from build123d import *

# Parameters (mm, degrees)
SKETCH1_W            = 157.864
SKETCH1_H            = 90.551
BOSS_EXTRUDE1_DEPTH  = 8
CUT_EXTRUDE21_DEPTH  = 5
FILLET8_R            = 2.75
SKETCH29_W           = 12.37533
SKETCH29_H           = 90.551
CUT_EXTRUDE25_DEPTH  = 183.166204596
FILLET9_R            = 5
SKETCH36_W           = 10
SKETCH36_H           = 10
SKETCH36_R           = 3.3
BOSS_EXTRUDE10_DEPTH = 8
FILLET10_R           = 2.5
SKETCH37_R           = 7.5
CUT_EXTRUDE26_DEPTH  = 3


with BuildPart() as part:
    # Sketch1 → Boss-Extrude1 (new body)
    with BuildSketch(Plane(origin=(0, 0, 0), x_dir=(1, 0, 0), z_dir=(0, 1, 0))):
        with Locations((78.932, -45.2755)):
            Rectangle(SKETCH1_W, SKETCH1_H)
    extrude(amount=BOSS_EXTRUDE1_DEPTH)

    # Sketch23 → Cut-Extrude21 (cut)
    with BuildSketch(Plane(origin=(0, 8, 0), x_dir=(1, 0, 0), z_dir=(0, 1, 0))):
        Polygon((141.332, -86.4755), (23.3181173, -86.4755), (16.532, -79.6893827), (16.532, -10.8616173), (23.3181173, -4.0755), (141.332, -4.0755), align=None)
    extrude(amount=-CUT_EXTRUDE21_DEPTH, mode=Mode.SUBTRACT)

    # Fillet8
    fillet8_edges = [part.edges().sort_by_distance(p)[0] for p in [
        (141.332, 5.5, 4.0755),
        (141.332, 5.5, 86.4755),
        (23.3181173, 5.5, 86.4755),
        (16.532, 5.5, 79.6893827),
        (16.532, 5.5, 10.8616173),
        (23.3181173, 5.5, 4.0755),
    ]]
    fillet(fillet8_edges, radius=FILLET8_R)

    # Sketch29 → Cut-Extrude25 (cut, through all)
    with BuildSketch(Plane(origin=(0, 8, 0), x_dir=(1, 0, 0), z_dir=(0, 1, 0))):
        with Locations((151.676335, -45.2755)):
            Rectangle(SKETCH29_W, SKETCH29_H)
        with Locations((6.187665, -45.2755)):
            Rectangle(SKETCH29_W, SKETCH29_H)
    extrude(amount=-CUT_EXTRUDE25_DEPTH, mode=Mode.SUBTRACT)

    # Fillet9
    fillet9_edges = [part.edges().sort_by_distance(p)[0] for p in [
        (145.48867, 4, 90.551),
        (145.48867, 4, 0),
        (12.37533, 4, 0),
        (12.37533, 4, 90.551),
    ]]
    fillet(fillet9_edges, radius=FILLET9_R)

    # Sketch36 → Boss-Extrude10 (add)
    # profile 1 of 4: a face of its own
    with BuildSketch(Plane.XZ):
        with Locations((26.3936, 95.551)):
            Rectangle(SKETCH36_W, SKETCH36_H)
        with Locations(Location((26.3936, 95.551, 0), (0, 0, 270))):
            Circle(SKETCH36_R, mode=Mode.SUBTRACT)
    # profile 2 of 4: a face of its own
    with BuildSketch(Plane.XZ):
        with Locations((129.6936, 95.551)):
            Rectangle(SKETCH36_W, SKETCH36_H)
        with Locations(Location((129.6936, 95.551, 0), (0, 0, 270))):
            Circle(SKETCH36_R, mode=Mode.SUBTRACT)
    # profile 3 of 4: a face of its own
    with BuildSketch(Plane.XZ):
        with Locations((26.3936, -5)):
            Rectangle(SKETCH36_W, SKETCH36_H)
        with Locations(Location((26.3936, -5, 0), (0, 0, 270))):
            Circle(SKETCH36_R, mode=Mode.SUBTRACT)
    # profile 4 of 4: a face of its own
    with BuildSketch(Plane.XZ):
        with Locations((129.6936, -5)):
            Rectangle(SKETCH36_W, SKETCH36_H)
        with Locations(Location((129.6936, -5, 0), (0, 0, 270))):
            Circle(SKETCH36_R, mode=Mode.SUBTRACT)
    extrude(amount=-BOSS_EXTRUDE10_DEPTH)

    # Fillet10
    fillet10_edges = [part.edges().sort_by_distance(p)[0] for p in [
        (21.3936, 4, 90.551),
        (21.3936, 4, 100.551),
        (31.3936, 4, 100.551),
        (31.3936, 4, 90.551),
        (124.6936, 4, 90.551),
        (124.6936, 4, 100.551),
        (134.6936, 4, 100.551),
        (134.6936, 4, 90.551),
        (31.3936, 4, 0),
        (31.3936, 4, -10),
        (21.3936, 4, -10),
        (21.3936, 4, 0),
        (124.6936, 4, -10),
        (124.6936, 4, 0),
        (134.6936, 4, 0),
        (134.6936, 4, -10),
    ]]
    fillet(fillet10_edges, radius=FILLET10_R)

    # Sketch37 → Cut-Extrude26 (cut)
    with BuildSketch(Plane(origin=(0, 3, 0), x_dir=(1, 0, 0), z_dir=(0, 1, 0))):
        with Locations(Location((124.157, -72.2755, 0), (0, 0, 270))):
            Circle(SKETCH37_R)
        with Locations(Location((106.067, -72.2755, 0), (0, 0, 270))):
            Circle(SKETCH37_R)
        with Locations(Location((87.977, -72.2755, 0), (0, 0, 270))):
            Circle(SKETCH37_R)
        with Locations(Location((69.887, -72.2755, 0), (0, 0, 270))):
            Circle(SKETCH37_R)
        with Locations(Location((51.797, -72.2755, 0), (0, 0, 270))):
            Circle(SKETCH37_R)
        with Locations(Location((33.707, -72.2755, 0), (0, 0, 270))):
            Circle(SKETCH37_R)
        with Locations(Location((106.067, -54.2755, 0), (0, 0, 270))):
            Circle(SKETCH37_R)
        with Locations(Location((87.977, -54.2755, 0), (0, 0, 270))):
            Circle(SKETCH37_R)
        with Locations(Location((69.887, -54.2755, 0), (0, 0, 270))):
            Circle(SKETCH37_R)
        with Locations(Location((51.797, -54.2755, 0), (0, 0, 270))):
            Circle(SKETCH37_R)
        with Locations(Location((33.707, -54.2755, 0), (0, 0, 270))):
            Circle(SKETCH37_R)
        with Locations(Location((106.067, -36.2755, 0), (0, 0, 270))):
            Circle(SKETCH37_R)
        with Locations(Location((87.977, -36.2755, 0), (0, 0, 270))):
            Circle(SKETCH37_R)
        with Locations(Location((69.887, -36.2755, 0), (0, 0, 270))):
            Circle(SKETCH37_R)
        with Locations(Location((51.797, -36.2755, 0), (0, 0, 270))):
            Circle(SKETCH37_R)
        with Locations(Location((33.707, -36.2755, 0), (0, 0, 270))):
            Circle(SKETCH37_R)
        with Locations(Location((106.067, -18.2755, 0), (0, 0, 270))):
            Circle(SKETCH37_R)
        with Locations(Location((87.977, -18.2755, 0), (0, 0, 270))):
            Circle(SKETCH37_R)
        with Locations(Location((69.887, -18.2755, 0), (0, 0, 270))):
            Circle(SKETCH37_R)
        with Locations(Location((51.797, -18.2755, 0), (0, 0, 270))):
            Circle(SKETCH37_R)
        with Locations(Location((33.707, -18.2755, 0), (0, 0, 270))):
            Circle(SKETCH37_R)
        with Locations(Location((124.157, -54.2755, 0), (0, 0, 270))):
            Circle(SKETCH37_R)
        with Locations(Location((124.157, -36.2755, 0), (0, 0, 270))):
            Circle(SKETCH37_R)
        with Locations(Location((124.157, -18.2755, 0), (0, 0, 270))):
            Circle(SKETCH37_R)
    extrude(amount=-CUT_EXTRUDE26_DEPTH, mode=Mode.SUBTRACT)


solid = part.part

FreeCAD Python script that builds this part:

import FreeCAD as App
import Part
import Sketcher

V = App.Vector


def edges_at(feature, points):
    """Names of the edges that pass closest to the given points."""
    edges = feature.Shape.Edges
    near = lambda p: min(range(len(edges)), key=lambda i: edges[i].distToShape(Part.Vertex(*p))[0])
    return sorted({f"Edge{near(p) + 1}" for p in points})


def add_polygon(sketch, points):
    """Adds a closed chain of lines whose ends are joined by coincident constraints."""
    first, n = sketch.GeometryCount, len(points)
    for a, b in zip(points, points[1:] + points[:1]):
        sketch.addGeometry(Part.LineSegment(App.Vector(*a, 0), App.Vector(*b, 0)), False)
    for i in range(n):
        sketch.addConstraint(Sketcher.Constraint("Coincident", first + i, 2, first + (i + 1) % n, 1))

doc = App.newDocument("Part")
body = doc.addObject("PartDesign::Body", "Body")

# Sketch on XZ plane
sketch1 = body.newObject("Sketcher::SketchObject", "Sketch")
sketch1.AttachmentSupport = (doc.getObject("XZ_Plane"), [""])
sketch1.MapMode = "FlatFace"
add_polygon(sketch1, [(0, 0), (0, 91), (158, 91), (158, 0)])  # lines 0-3
sketch1.addConstraint(Sketcher.Constraint("Vertical", 0))
sketch1.addConstraint(Sketcher.Constraint("Horizontal", 1))
sketch1.addConstraint(Sketcher.Constraint("Vertical", 2))
sketch1.addConstraint(Sketcher.Constraint("Horizontal", 3))
sketch1.addConstraint(Sketcher.Constraint("Coincident", 3, 2, -1, 1))
sketch1.addConstraint(Sketcher.Constraint("DistanceX", 1, 1, 1, 2, 157.864))
sketch1.addConstraint(Sketcher.Constraint("DistanceY", 0, 1, 0, 2, 90.551))
pad1 = body.newObject("PartDesign::Pad", "Pad")
pad1.Profile = sketch1
pad1.Length = 8
pad1.Reversed = True

# Sketch on XZ plane
sketch2 = body.newObject("Sketcher::SketchObject", "Sketch001")
sketch2.AttachmentSupport = (doc.getObject("XZ_Plane"), [""])
sketch2.MapMode = "FlatFace"
sketch2.AttachmentOffset = App.Placement(V(0, 0, -8), App.Rotation())
add_polygon(sketch2, [(23, 86), (141, 86), (141, 4), (23, 4), (17, 11), (17, 80)])  # lines 0-5
sketch2.addConstraint(Sketcher.Constraint("Horizontal", 0))
sketch2.addConstraint(Sketcher.Constraint("Vertical", 1))
sketch2.addConstraint(Sketcher.Constraint("Horizontal", 2))
sketch2.addConstraint(Sketcher.Constraint("Vertical", 4))
sketch2.addConstraint(Sketcher.Constraint("Perpendicular", 3, 5))
sketch2.addConstraint(Sketcher.Constraint("Vertical", 2, 2, 5, 2))
sketch2.addConstraint(Sketcher.Constraint("Equal", 3, 5))
sketch2.addConstraint(Sketcher.Constraint("DistanceY", 1, 2, 1, 1, 82.4))
sketch2.addConstraint(Sketcher.Constraint("DistanceX", 3, 2, 1, 2, 124.8))
sketch2.addConstraint(Sketcher.Constraint("DistanceX", -1, 1, 0, 2, 141.332))
sketch2.addConstraint(Sketcher.Constraint("DistanceY", -1, 1, 0, 2, 86.4755))
sketch2.addConstraint(Sketcher.Constraint("Distance", 3, 9.597019))
pocket1 = body.newObject("PartDesign::Pocket", "Pocket")
pocket1.Profile = sketch2
pocket1.Length = 5
pocket1.Reversed = True
doc.recompute()

fillet = body.newObject("PartDesign::Fillet", "Fillet")
fillet.Base = (pocket1, edges_at(pocket1, [
    (141.332, 5.5, 4.075),
    (141.332, 5.5, 86.475),
    (23.318, 5.5, 86.475),
    (16.532, 5.5, 79.689),
    (16.532, 5.5, 10.862),
    (23.318, 5.5, 4.075),
]))
fillet.Radius = 2.75

# Sketch on XZ plane
sketch3 = body.newObject("Sketcher::SketchObject", "Sketch002")
sketch3.AttachmentSupport = (doc.getObject("XZ_Plane"), [""])
sketch3.MapMode = "FlatFace"
sketch3.AttachmentOffset = App.Placement(V(0, 0, -8), App.Rotation())
add_polygon(sketch3, [(145, 0), (145, 91), (158, 91), (158, 0)])  # lines 0-3
add_polygon(sketch3, [(0, 0), (0, 91), (12, 91), (12, 0)])  # lines 4-7
sketch3.addConstraint(Sketcher.Constraint("Vertical", 0))
sketch3.addConstraint(Sketcher.Constraint("Horizontal", 1))
sketch3.addConstraint(Sketcher.Constraint("Vertical", 2))
sketch3.addConstraint(Sketcher.Constraint("Horizontal", 3))
sketch3.addConstraint(Sketcher.Constraint("Vertical", 4))
sketch3.addConstraint(Sketcher.Constraint("Horizontal", 5))
sketch3.addConstraint(Sketcher.Constraint("Vertical", 6))
sketch3.addConstraint(Sketcher.Constraint("Horizontal", 7))
sketch3.addConstraint(Sketcher.Constraint("Coincident", 7, 2, -1, 1))
sketch3.addConstraint(Sketcher.Constraint("PointOnObject", 2, 2, -1))
sketch3.addConstraint(Sketcher.Constraint("Horizontal", 1, 2, 4, 2))
sketch3.addConstraint(Sketcher.Constraint("Equal", 3, 5))
sketch3.addConstraint(Sketcher.Constraint("DistanceY", 0, 1, 0, 2, 90.551))
sketch3.addConstraint(Sketcher.Constraint("DistanceX", -1, 1, 1, 2, 157.864))
sketch3.addConstraint(Sketcher.Constraint("DistanceX", 1, 1, 1, 2, 12.37533))
pocket2 = body.newObject("PartDesign::Pocket", "Pocket001")
pocket2.Profile = sketch3
pocket2.Type = "ThroughAll"
pocket2.Reversed = True
doc.recompute()

fillet2 = body.newObject("PartDesign::Fillet", "Fillet001")
fillet2.Base = (pocket2, edges_at(pocket2, [
    (145.489, 4, 90.551),
    (145.489, 4, 0),
    (12.375, 4, 0),
    (12.375, 4, 90.551),
]))
fillet2.Radius = 5

# Sketch on XZ plane
sketch4 = body.newObject("Sketcher::SketchObject", "Sketch003")
sketch4.AttachmentSupport = (doc.getObject("XZ_Plane"), [""])
sketch4.MapMode = "FlatFace"
add_polygon(sketch4, [(21.4, 100.6), (21.4, 90.6), (31.4, 90.6), (31.4, 100.6)])  # lines 0-3
sketch4.addGeometry(Part.Circle(V(26.4, 95.6, 0), V(0, 0, 1), 3.3), False)  # 4
add_polygon(sketch4, [(124.7, 100.6), (124.7, 90.6), (134.7, 90.6), (134.7, 100.6)])  # lines 5-8
sketch4.addGeometry(Part.Circle(V(129.7, 95.6, 0), V(0, 0, 1), 3.3), False)  # 9
add_polygon(sketch4, [(21.4, 0), (21.4, -10), (31.4, -10), (31.4, 0)])  # lines 10-13
sketch4.addGeometry(Part.Circle(V(26.4, -5, 0), V(0, 0, 1), 3.3), False)  # 14
add_polygon(sketch4, [(124.7, 0), (124.7, -10), (134.7, -10), (134.7, 0)])  # lines 15-18
sketch4.addGeometry(Part.Circle(V(129.7, -5, 0), V(0, 0, 1), 3.3), False)  # 19
sketch4.addConstraint(Sketcher.Constraint("Vertical", 0))
sketch4.addConstraint(Sketcher.Constraint("Horizontal", 1))
sketch4.addConstraint(Sketcher.Constraint("Vertical", 2))
sketch4.addConstraint(Sketcher.Constraint("Horizontal", 3))
sketch4.addConstraint(Sketcher.Constraint("Vertical", 5))
sketch4.addConstraint(Sketcher.Constraint("Horizontal", 6))
sketch4.addConstraint(Sketcher.Constraint("Vertical", 7))
sketch4.addConstraint(Sketcher.Constraint("Horizontal", 8))
sketch4.addConstraint(Sketcher.Constraint("Vertical", 10))
sketch4.addConstraint(Sketcher.Constraint("Horizontal", 11))
sketch4.addConstraint(Sketcher.Constraint("Vertical", 12))
sketch4.addConstraint(Sketcher.Constraint("Horizontal", 13))
sketch4.addConstraint(Sketcher.Constraint("Vertical", 15))
sketch4.addConstraint(Sketcher.Constraint("Horizontal", 16))
sketch4.addConstraint(Sketcher.Constraint("Vertical", 17))
sketch4.addConstraint(Sketcher.Constraint("Horizontal", 18))
sketch4.addConstraint(Sketcher.Constraint("Equal", 4, 9))
sketch4.addConstraint(Sketcher.Constraint("Equal", 9, 14))
sketch4.addConstraint(Sketcher.Constraint("Equal", 14, 19))
sketch4.addConstraint(Sketcher.Constraint("PointOnObject", 12, 2, -1))
sketch4.addConstraint(Sketcher.Constraint("PointOnObject", 17, 2, -1))
sketch4.addConstraint(Sketcher.Constraint("Horizontal", 4, 3, 9, 3))
sketch4.addConstraint(Sketcher.Constraint("Horizontal", 14, 3, 19, 3))
sketch4.addConstraint(Sketcher.Constraint("Horizontal", 1, 2, 5, 2))
sketch4.addConstraint(Sketcher.Constraint("Horizontal", 3, 2, 7, 2))
sketch4.addConstraint(Sketcher.Constraint("Horizontal", 11, 2, 15, 2))
sketch4.addConstraint(Sketcher.Constraint("Vertical", 4, 3, 14, 3))
sketch4.addConstraint(Sketcher.Constraint("Vertical", 9, 3, 19, 3))
sketch4.addConstraint(Sketcher.Constraint("Vertical", 3, 2, 10, 2))
sketch4.addConstraint(Sketcher.Constraint("Vertical", 2, 2, 11, 2))
sketch4.addConstraint(Sketcher.Constraint("Vertical", 8, 2, 15, 2))
sketch4.addConstraint(Sketcher.Constraint("Vertical", 7, 2, 16, 2))
sketch4.addConstraint(Sketcher.Constraint("Equal", 3, 6))
sketch4.addConstraint(Sketcher.Constraint("Equal", 18, 0))
sketch4.addConstraint(Sketcher.Constraint("Equal", 7, 10))
sketch4.addConstraint(Sketcher.Constraint("Diameter", 4, 6.6))
sketch4.addConstraint(Sketcher.Constraint("DistanceX", 1, 1, 1, 2, 10.0))
sketch4.addConstraint(Sketcher.Constraint("DistanceY", 14, 3, -1, 1, 5.0))
sketch4.addConstraint(Sketcher.Constraint("DistanceX", 0, 2, 4, 3, 5.0))
sketch4.addConstraint(Sketcher.Constraint("DistanceY", 0, 2, 4, 3, 5.0))
sketch4.addConstraint(Sketcher.Constraint("DistanceX", 5, 2, 9, 3, 5.0))
sketch4.addConstraint(Sketcher.Constraint("DistanceX", 4, 3, 9, 3, 103.3))
sketch4.addConstraint(Sketcher.Constraint("DistanceY", -1, 1, 4, 3, 95.551))
sketch4.addConstraint(Sketcher.Constraint("DistanceX", -1, 1, 4, 3, 26.3936))
pad2 = body.newObject("PartDesign::Pad", "Pad001")
pad2.Profile = sketch4
pad2.Length = 8
pad2.Reversed = True
doc.recompute()

fillet3 = body.newObject("PartDesign::Fillet", "Fillet002")
fillet3.Base = (pad2, edges_at(pad2, [
    (21.394, 4, 90.551),
    (21.394, 4, 100.551),
    (31.394, 4, 100.551),
    (31.394, 4, 90.551),
    (124.694, 4, 90.551),
    (124.694, 4, 100.551),
    (134.694, 4, 100.551),
    (134.694, 4, 90.551),
    (31.394, 4, 0),
    (31.394, 4, -10),
    (21.394, 4, -10),
    (21.394, 4, 0),
    (124.694, 4, -10),
    (124.694, 4, 0),
    (134.694, 4, 0),
    (134.694, 4, -10),
]))
fillet3.Radius = 2.5

# Sketch on XZ plane
sketch5 = body.newObject("Sketcher::SketchObject", "Sketch004")
sketch5.AttachmentSupport = (doc.getObject("XZ_Plane"), [""])
sketch5.MapMode = "FlatFace"
sketch5.AttachmentOffset = App.Placement(V(0, 0, -3), App.Rotation())
sketch5.addGeometry(Part.Circle(V(124, 72, 0), V(0, 0, 1), 8), False)
sketch5.addGeometry(Part.Circle(V(106, 72, 0), V(0, 0, 1), 8), False)
sketch5.addGeometry(Part.Circle(V(88, 72, 0), V(0, 0, 1), 8), False)
sketch5.addGeometry(Part.Circle(V(70, 72, 0), V(0, 0, 1), 8), False)
sketch5.addGeometry(Part.Circle(V(52, 72, 0), V(0, 0, 1), 8), False)
sketch5.addGeometry(Part.Circle(V(34, 72, 0), V(0, 0, 1), 8), False)
sketch5.addGeometry(Part.Circle(V(106, 54, 0), V(0, 0, 1), 8), False)
sketch5.addGeometry(Part.Circle(V(88, 54, 0), V(0, 0, 1), 8), False)
sketch5.addGeometry(Part.Circle(V(70, 54, 0), V(0, 0, 1), 8), False)
sketch5.addGeometry(Part.Circle(V(52, 54, 0), V(0, 0, 1), 8), False)
sketch5.addGeometry(Part.Circle(V(34, 54, 0), V(0, 0, 1), 8), False)
sketch5.addGeometry(Part.Circle(V(106, 36, 0), V(0, 0, 1), 8), False)
sketch5.addGeometry(Part.Circle(V(88, 36, 0), V(0, 0, 1), 8), False)
sketch5.addGeometry(Part.Circle(V(70, 36, 0), V(0, 0, 1), 8), False)
sketch5.addGeometry(Part.Circle(V(52, 36, 0), V(0, 0, 1), 8), False)
sketch5.addGeometry(Part.Circle(V(34, 36, 0), V(0, 0, 1), 8), False)
sketch5.addGeometry(Part.Circle(V(106, 18, 0), V(0, 0, 1), 8), False)
sketch5.addGeometry(Part.Circle(V(88, 18, 0), V(0, 0, 1), 8), False)
sketch5.addGeometry(Part.Circle(V(70, 18, 0), V(0, 0, 1), 8), False)
sketch5.addGeometry(Part.Circle(V(52, 18, 0), V(0, 0, 1), 8), False)
sketch5.addGeometry(Part.Circle(V(34, 18, 0), V(0, 0, 1), 8), False)
sketch5.addGeometry(Part.Circle(V(124, 54, 0), V(0, 0, 1), 8), False)
sketch5.addGeometry(Part.Circle(V(124, 36, 0), V(0, 0, 1), 8), False)
sketch5.addGeometry(Part.Circle(V(124, 18, 0), V(0, 0, 1), 8), False)
sketch5.addConstraint(Sketcher.Constraint("Equal", 0, 1))
sketch5.addConstraint(Sketcher.Constraint("Equal", 1, 2))
sketch5.addConstraint(Sketcher.Constraint("Equal", 2, 3))
sketch5.addConstraint(Sketcher.Constraint("Equal", 3, 4))
sketch5.addConstraint(Sketcher.Constraint("Equal", 4, 5))
sketch5.addConstraint(Sketcher.Constraint("Equal", 5, 6))
sketch5.addConstraint(Sketcher.Constraint("Equal", 6, 7))
sketch5.addConstraint(Sketcher.Constraint("Equal", 7, 8))
sketch5.addConstraint(Sketcher.Constraint("Equal", 8, 9))
sketch5.addConstraint(Sketcher.Constraint("Equal", 9, 10))
sketch5.addConstraint(Sketcher.Constraint("Equal", 10, 11))
sketch5.addConstraint(Sketcher.Constraint("Equal", 11, 12))
sketch5.addConstraint(Sketcher.Constraint("Equal", 12, 13))
sketch5.addConstraint(Sketcher.Constraint("Equal", 13, 14))
sketch5.addConstraint(Sketcher.Constraint("Equal", 14, 15))
sketch5.addConstraint(Sketcher.Constraint("Equal", 15, 16))
sketch5.addConstraint(Sketcher.Constraint("Equal", 16, 17))
sketch5.addConstraint(Sketcher.Constraint("Equal", 17, 18))
sketch5.addConstraint(Sketcher.Constraint("Equal", 18, 19))
sketch5.addConstraint(Sketcher.Constraint("Equal", 19, 20))
sketch5.addConstraint(Sketcher.Constraint("Equal", 20, 21))
sketch5.addConstraint(Sketcher.Constraint("Equal", 21, 22))
sketch5.addConstraint(Sketcher.Constraint("Equal", 22, 23))
sketch5.addConstraint(Sketcher.Constraint("Horizontal", 0, 3, 1, 3))
sketch5.addConstraint(Sketcher.Constraint("Horizontal", 1, 3, 2, 3))
sketch5.addConstraint(Sketcher.Constraint("Horizontal", 2, 3, 3, 3))
sketch5.addConstraint(Sketcher.Constraint("Horizontal", 3, 3, 4, 3))
sketch5.addConstraint(Sketcher.Constraint("Horizontal", 4, 3, 5, 3))
sketch5.addConstraint(Sketcher.Constraint("Horizontal", 6, 3, 7, 3))
sketch5.addConstraint(Sketcher.Constraint("Horizontal", 7, 3, 8, 3))
sketch5.addConstraint(Sketcher.Constraint("Horizontal", 8, 3, 9, 3))
sketch5.addConstraint(Sketcher.Constraint("Horizontal", 9, 3, 10, 3))
sketch5.addConstraint(Sketcher.Constraint("Horizontal", 11, 3, 12, 3))
sketch5.addConstraint(Sketcher.Constraint("Horizontal", 12, 3, 13, 3))
sketch5.addConstraint(Sketcher.Constraint("Horizontal", 13, 3, 14, 3))
sketch5.addConstraint(Sketcher.Constraint("Horizontal", 14, 3, 15, 3))
sketch5.addConstraint(Sketcher.Constraint("Horizontal", 16, 3, 17, 3))
sketch5.addConstraint(Sketcher.Constraint("Horizontal", 17, 3, 18, 3))
sketch5.addConstraint(Sketcher.Constraint("Horizontal", 18, 3, 19, 3))
sketch5.addConstraint(Sketcher.Constraint("Horizontal", 19, 3, 20, 3))
sketch5.addConstraint(Sketcher.Constraint("Horizontal", 10, 3, 21, 3))
sketch5.addConstraint(Sketcher.Constraint("Horizontal", 15, 3, 22, 3))
sketch5.addConstraint(Sketcher.Constraint("Horizontal", 20, 3, 23, 3))
sketch5.addConstraint(Sketcher.Constraint("Vertical", 1, 3, 6, 3))
sketch5.addConstraint(Sketcher.Constraint("Vertical", 2, 3, 7, 3))
sketch5.addConstraint(Sketcher.Constraint("Vertical", 3, 3, 8, 3))
sketch5.addConstraint(Sketcher.Constraint("Vertical", 4, 3, 9, 3))
sketch5.addConstraint(Sketcher.Constraint("Vertical", 5, 3, 10, 3))
sketch5.addConstraint(Sketcher.Constraint("Vertical", 6, 3, 11, 3))
sketch5.addConstraint(Sketcher.Constraint("Vertical", 7, 3, 12, 3))
sketch5.addConstraint(Sketcher.Constraint("Vertical", 8, 3, 13, 3))
sketch5.addConstraint(Sketcher.Constraint("Vertical", 9, 3, 14, 3))
sketch5.addConstraint(Sketcher.Constraint("Vertical", 10, 3, 15, 3))
sketch5.addConstraint(Sketcher.Constraint("Vertical", 11, 3, 16, 3))
sketch5.addConstraint(Sketcher.Constraint("Vertical", 12, 3, 17, 3))
sketch5.addConstraint(Sketcher.Constraint("Vertical", 13, 3, 18, 3))
sketch5.addConstraint(Sketcher.Constraint("Vertical", 14, 3, 19, 3))
sketch5.addConstraint(Sketcher.Constraint("Vertical", 15, 3, 20, 3))
sketch5.addConstraint(Sketcher.Constraint("Vertical", 0, 3, 21, 3))
sketch5.addConstraint(Sketcher.Constraint("Vertical", 21, 3, 22, 3))
sketch5.addConstraint(Sketcher.Constraint("Vertical", 22, 3, 23, 3))
sketch5.addConstraint(Sketcher.Constraint("Diameter", 0, 15.0))
sketch5.addConstraint(Sketcher.Constraint("DistanceY", 6, 3, 1, 3, 18.0))
sketch5.addConstraint(Sketcher.Constraint("DistanceY", 11, 3, 6, 3, 18.0))
sketch5.addConstraint(Sketcher.Constraint("DistanceY", 16, 3, 11, 3, 18.0))
sketch5.addConstraint(Sketcher.Constraint("DistanceX", 1, 3, 0, 3, 18.09))
sketch5.addConstraint(Sketcher.Constraint("DistanceX", 2, 3, 1, 3, 18.09))
sketch5.addConstraint(Sketcher.Constraint("DistanceX", 3, 3, 2, 3, 18.09))
sketch5.addConstraint(Sketcher.Constraint("DistanceX", 4, 3, 3, 3, 18.09))
sketch5.addConstraint(Sketcher.Constraint("DistanceX", 5, 3, 4, 3, 18.09))
sketch5.addConstraint(Sketcher.Constraint("DistanceX", -1, 1, 0, 3, 124.157))
sketch5.addConstraint(Sketcher.Constraint("DistanceY", -1, 1, 0, 3, 72.2755))
pocket3 = body.newObject("PartDesign::Pocket", "Pocket002")
pocket3.Profile = sketch5
pocket3.Length = 3
pocket3.Reversed = True

doc.recompute()
